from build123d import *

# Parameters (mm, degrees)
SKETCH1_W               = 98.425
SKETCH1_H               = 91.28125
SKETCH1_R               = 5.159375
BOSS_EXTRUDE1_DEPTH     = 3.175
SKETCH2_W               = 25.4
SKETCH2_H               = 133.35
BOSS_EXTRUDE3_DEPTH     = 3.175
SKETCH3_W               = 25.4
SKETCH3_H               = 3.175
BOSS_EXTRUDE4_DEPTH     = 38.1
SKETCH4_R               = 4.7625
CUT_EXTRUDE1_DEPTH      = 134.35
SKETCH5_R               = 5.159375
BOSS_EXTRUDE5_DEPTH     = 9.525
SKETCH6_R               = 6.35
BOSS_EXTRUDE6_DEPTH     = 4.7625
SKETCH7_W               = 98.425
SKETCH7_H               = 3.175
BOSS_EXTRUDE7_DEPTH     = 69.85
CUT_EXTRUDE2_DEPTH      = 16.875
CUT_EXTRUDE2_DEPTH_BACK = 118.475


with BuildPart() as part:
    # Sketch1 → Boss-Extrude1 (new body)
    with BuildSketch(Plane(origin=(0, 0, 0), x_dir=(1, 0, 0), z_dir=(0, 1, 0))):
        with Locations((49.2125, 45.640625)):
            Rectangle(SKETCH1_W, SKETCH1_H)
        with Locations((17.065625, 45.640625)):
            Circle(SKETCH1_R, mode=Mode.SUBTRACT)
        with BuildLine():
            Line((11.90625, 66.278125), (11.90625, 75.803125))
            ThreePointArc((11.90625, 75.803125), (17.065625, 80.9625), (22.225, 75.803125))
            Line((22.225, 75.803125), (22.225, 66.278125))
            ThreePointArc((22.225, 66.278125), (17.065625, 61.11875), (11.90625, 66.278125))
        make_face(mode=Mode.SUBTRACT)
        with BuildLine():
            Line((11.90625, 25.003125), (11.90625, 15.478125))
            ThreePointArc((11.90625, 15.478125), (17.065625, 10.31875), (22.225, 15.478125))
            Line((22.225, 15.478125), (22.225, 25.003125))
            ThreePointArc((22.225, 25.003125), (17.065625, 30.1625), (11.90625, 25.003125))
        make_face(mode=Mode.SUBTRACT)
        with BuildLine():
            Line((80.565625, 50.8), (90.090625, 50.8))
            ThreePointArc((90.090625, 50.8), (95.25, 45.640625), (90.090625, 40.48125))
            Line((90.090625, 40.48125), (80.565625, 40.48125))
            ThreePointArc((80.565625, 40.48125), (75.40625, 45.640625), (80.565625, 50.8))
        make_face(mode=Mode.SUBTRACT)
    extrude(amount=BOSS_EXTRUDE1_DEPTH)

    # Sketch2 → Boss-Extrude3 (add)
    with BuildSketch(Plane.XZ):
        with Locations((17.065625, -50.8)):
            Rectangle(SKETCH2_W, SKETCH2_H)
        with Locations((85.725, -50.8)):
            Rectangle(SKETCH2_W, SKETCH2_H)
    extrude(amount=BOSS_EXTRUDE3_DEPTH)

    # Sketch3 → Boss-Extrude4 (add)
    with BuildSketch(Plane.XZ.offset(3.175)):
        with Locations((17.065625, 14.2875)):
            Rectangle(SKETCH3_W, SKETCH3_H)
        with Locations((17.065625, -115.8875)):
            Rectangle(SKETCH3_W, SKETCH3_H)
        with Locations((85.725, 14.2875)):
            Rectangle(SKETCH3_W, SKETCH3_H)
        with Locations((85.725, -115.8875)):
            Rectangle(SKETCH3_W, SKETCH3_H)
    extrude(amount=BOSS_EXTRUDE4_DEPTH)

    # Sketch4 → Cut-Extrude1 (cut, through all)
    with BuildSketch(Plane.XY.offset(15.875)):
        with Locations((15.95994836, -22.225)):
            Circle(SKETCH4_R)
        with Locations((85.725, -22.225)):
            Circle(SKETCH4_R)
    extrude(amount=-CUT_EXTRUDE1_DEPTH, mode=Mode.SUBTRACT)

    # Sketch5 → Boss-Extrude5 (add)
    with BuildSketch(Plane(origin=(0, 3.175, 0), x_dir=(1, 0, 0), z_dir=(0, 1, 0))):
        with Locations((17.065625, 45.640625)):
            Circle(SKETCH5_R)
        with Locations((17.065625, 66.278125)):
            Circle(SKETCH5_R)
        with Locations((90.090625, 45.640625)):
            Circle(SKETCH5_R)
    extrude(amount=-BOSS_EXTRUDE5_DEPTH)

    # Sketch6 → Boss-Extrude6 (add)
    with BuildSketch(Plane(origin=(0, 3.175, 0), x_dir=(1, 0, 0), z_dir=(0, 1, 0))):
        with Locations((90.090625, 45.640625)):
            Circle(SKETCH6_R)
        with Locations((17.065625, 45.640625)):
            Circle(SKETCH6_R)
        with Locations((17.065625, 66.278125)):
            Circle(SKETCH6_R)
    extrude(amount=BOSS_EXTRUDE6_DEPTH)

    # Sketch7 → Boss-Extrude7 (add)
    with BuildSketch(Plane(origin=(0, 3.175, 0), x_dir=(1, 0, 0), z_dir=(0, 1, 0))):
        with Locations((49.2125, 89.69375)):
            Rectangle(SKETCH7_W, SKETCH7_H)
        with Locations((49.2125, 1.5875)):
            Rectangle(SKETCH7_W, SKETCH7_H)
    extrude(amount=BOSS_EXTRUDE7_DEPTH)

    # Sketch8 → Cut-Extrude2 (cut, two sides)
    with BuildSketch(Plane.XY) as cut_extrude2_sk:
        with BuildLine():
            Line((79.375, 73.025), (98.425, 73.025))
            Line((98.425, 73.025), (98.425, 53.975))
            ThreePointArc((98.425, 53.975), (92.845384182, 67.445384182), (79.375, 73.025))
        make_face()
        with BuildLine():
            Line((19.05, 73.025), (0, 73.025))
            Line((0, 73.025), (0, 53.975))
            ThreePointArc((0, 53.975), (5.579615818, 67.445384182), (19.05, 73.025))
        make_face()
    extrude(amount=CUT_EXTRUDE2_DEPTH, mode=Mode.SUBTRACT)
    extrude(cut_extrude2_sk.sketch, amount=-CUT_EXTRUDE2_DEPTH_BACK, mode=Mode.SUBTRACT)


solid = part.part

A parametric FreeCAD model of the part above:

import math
import FreeCAD as App
import Part
import Sketcher
from FreeCAD import Vector
Q = App.Units.Quantity

doc = App.newDocument("Part")
body = doc.addObject("PartDesign::Body", "Body")

sketch1 = doc.addObject("Sketcher::SketchObject", "Sketch")
body.addObject(sketch1)
sketch1.AttachmentSupport = (doc.XZ_Plane, [""])
sketch1.MapMode = "FlatFace"
sketch1.addGeometry(Part.LineSegment(Vector(0, -91, 0), Vector(0, 0, 0)), False)
sketch1.addGeometry(Part.LineSegment(Vector(0, 0, 0), Vector(98, 0, 0)), False)
sketch1.addGeometry(Part.LineSegment(Vector(98, 0, 0), Vector(98, -91, 0)), False)
sketch1.addGeometry(Part.LineSegment(Vector(98, -91, 0), Vector(0, -91, 0)), False)
sketch1.addGeometry(Part.LineSegment(Vector(12, -15, 0), Vector(12, -25, 0)), False)
sketch1.addGeometry(Part.ArcOfCircle(Part.Circle(Vector(17, -25, 0), Vector(0, 0, 1), 5), math.radians(180), math.radians(360)), False)
sketch1.addGeometry(Part.LineSegment(Vector(22, -25, 0), Vector(22, -15, 0)), False)
sketch1.addGeometry(Part.ArcOfCircle(Part.Circle(Vector(17, -15, 0), Vector(0, 0, 1), 5), math.radians(0), math.radians(180)), False)
sketch1.addGeometry(Part.Circle(Vector(17, -46, 0), Vector(0, 0, 1), 5), False)
sketch1.addGeometry(Part.ArcOfCircle(Part.Circle(Vector(17, -66, 0), Vector(0, 0, 1), 5), math.radians(0), math.radians(180)), False)
sketch1.addGeometry(Part.LineSegment(Vector(12, -66, 0), Vector(12, -76, 0)), False)
sketch1.addGeometry(Part.ArcOfCircle(Part.Circle(Vector(17, -76, 0), Vector(0, 0, 1), 5), math.radians(180), math.radians(360)), False)
sketch1.addGeometry(Part.LineSegment(Vector(22, -76, 0), Vector(22, -66, 0)), False)
sketch1.addGeometry(Part.ArcOfCircle(Part.Circle(Vector(81, -46, 0), Vector(0, 0, 1), 5), math.radians(90), math.radians(270)), False)
sketch1.addGeometry(Part.LineSegment(Vector(81, -51, 0), Vector(90, -51, 0)), False)
sketch1.addGeometry(Part.ArcOfCircle(Part.Circle(Vector(90, -46, 0), Vector(0, 0, 1), 5), math.radians(-90), math.radians(90)), False)
sketch1.addGeometry(Part.LineSegment(Vector(90, -40, 0), Vector(81, -40, 0)), False)
sketch1.addConstraint(Sketcher.Constraint("Coincident", 0, 2, 1, 1))
sketch1.addConstraint(Sketcher.Constraint("Coincident", 1, 2, 2, 1))
sketch1.addConstraint(Sketcher.Constraint("Coincident", 2, 2, 3, 1))
sketch1.addConstraint(Sketcher.Constraint("Coincident", 3, 2, 0, 1))
sketch1.addConstraint(Sketcher.Constraint("Tangent", 4, 2, 5, 1))
sketch1.addConstraint(Sketcher.Constraint("Tangent", 5, 2, 6, 1))
sketch1.addConstraint(Sketcher.Constraint("Tangent", 6, 2, 7, 1))
sketch1.addConstraint(Sketcher.Constraint("Tangent", 7, 2, 4, 1))
sketch1.addConstraint(Sketcher.Constraint("Tangent", 9, 2, 10, 1))
sketch1.addConstraint(Sketcher.Constraint("Tangent", 10, 2, 11, 1))
sketch1.addConstraint(Sketcher.Constraint("Tangent", 11, 2, 12, 1))
sketch1.addConstraint(Sketcher.Constraint("Tangent", 12, 2, 9, 1))
sketch1.addConstraint(Sketcher.Constraint("Tangent", 13, 2, 14, 1))
sketch1.addConstraint(Sketcher.Constraint("Tangent", 14, 2, 15, 1))
sketch1.addConstraint(Sketcher.Constraint("Tangent", 15, 2, 16, 1))
sketch1.addConstraint(Sketcher.Constraint("Tangent", 16, 2, 13, 1))
sketch1.addConstraint(Sketcher.Constraint("Vertical", 0))
sketch1.addConstraint(Sketcher.Constraint("Horizontal", 1))
sketch1.addConstraint(Sketcher.Constraint("Vertical", 2))
sketch1.addConstraint(Sketcher.Constraint("Horizontal", 3))
sketch1.addConstraint(Sketcher.Constraint("Vertical", 4))
sketch1.addConstraint(Sketcher.Constraint("Vertical", 6))
sketch1.addConstraint(Sketcher.Constraint("Vertical", 10))
sketch1.addConstraint(Sketcher.Constraint("Vertical", 12))
sketch1.addConstraint(Sketcher.Constraint("Horizontal", 14))
sketch1.addConstraint(Sketcher.Constraint("Horizontal", 16))
sketch1.addConstraint(Sketcher.Constraint("Coincident", 0, 2, -1, 1))
sketch1.addConstraint(Sketcher.Constraint("Equal", 7, 8))
sketch1.addConstraint(Sketcher.Constraint("Equal", 8, 9))
sketch1.addConstraint(Sketcher.Constraint("Equal", 11, 13))
sketch1.addConstraint(Sketcher.Constraint("Horizontal", 8, 3, 13, 3))
sketch1.addConstraint(Sketcher.Constraint("Vertical", 7, 3, 8, 3))
sketch1.addConstraint(Sketcher.Constraint("Vertical", 8, 3, 9, 3))
sketch1.addConstraint(Sketcher.Constraint("Equal", 16, 4))
sketch1.addConstraint(Sketcher.Constraint("Equal", 6, 10))
sketch1.addConstraint(Sketcher.Constraint("Diameter", 8, Q("0.40625 in")))
sketch1.addConstraint(Sketcher.Constraint("DistanceY", 13, 2, -1, 1, Q("2 in")))
sketch1.addConstraint(Sketcher.Constraint("DistanceY", 9, 3, 7, 3, Q("2 in")))
sketch1.addConstraint(Sketcher.Constraint("DistanceX", 8, 3, 13, 3, Q("2.5 in")))
sketch1.addConstraint(Sketcher.Constraint("DistanceX", 1, 1, 1, 2, Q("3.875 in")))
sketch1.addConstraint(Sketcher.Constraint("DistanceX", 14, 1, 14, 2, Q("0.375 in")))
sketch1.addConstraint(Sketcher.Constraint("DistanceY", 0, 1, 0, 2, Q("3.59375 in")))
sketch1.addConstraint(Sketcher.Constraint("DistanceX", -1, 1, 5, 3, Q("0.671875 in")))
sketch1.addConstraint(Sketcher.Constraint("DistanceY", 5, 3, -1, 1, Q("0.984375 in")))
pad1 = doc.addObject("PartDesign::Pad", "Pad")
body.addObject(pad1)
pad1.Profile = sketch1
pad1.Length = Q("0.125 in")
pad1.Reversed = True

sketch2 = doc.addObject("Sketcher::SketchObject", "Sketch001")
body.addObject(sketch2)
sketch2.AttachmentSupport = (doc.XZ_Plane, [""])
sketch2.MapMode = "FlatFace"
sketch2.addGeometry(Part.LineSegment(Vector(4, 16, 0), Vector(4, -117, 0)), False)
sketch2.addGeometry(Part.LineSegment(Vector(4, -117, 0), Vector(30, -117, 0)), False)
sketch2.addGeometry(Part.LineSegment(Vector(30, -117, 0), Vector(30, 16, 0)), False)
sketch2.addGeometry(Part.LineSegment(Vector(30, 16, 0), Vector(4, 16, 0)), False)
sketch2.addGeometry(Part.LineSegment(Vector(73, 16, 0), Vector(73, -117, 0)), False)
sketch2.addGeometry(Part.LineSegment(Vector(73, -117, 0), Vector(98, -117, 0)), False)
sketch2.addGeometry(Part.LineSegment(Vector(98, -117, 0), Vector(98, 16, 0)), False)
sketch2.addGeometry(Part.LineSegment(Vector(98, 16, 0), Vector(73, 16, 0)), False)
sketch2.addConstraint(Sketcher.Constraint("Coincident", 0, 2, 1, 1))
sketch2.addConstraint(Sketcher.Constraint("Coincident", 1, 2, 2, 1))
sketch2.addConstraint(Sketcher.Constraint("Coincident", 2, 2, 3, 1))
sketch2.addConstraint(Sketcher.Constraint("Coincident", 3, 2, 0, 1))
sketch2.addConstraint(Sketcher.Constraint("Coincident", 4, 2, 5, 1))
sketch2.addConstraint(Sketcher.Constraint("Coincident", 5, 2, 6, 1))
sketch2.addConstraint(Sketcher.Constraint("Coincident", 6, 2, 7, 1))
sketch2.addConstraint(Sketcher.Constraint("Coincident", 7, 2, 4, 1))
sketch2.addConstraint(Sketcher.Constraint("Vertical", 0))
sketch2.addConstraint(Sketcher.Constraint("Horizontal", 1))
sketch2.addConstraint(Sketcher.Constraint("Vertical", 2))
sketch2.addConstraint(Sketcher.Constraint("Horizontal", 3))
sketch2.addConstraint(Sketcher.Constraint("Vertical", 4))
sketch2.addConstraint(Sketcher.Constraint("Horizontal", 5))
sketch2.addConstraint(Sketcher.Constraint("Vertical", 6))
sketch2.addConstraint(Sketcher.Constraint("Horizontal", 7))
sketch2.addConstraint(Sketcher.Constraint("Horizontal", 1, 2, 4, 2))
sketch2.addConstraint(Sketcher.Constraint("Horizontal", 3, 2, 6, 2))
sketch2.addConstraint(Sketcher.Constraint("Equal", 3, 5))
sketch2.addConstraint(Sketcher.Constraint("DistanceX", 1, 1, 1, 2, Q("1 in")))
sketch2.addConstraint(Sketcher.Constraint("DistanceY", 0, 2, 0, 1, Q("5.25 in")))
sketch2.addConstraint(Sketcher.Constraint("DistanceX", -1, 1, 0, 2, Q("0.171875 in")))
sketch2.addConstraint(Sketcher.Constraint("DistanceY", 0, 2, -1, 1, Q("4.625 in")))
sketch2.addConstraint(Sketcher.Constraint("DistanceX", -1, 1, 4, 2, Q("2.875 in")))
pad2 = doc.addObject("PartDesign::Pad", "Pad001")
body.addObject(pad2)
pad2.Profile = sketch2
pad2.Length = Q("0.125 in")

sketch3 = doc.addObject("Sketcher::SketchObject", "Sketch002")
body.addObject(sketch3)
sketch3.AttachmentSupport = (doc.XZ_Plane, [""])
sketch3.MapMode = "FlatFace"
sketch3.AttachmentOffset = App.Placement(Vector(0, 0, 0.125 * 25.4), App.Rotation())
sketch3.addGeometry(Part.LineSegment(Vector(4.4, 15.9, 0), Vector(4.4, 12.7, 0)), False)
sketch3.addGeometry(Part.LineSegment(Vector(4.4, 12.7, 0), Vector(29.8, 12.7, 0)), False)
sketch3.addGeometry(Part.LineSegment(Vector(29.8, 12.7, 0), Vector(29.8, 15.9, 0)), False)
sketch3.addGeometry(Part.LineSegment(Vector(29.8, 15.9, 0), Vector(4.4, 15.9, 0)), False)
sketch3.addGeometry(Part.LineSegment(Vector(4.4, -114.3, 0), Vector(4.4, -117.5, 0)), False)
sketch3.addGeometry(Part.LineSegment(Vector(4.4, -117.5, 0), Vector(29.8, -117.5, 0)), False)
sketch3.addGeometry(Part.LineSegment(Vector(29.8, -117.5, 0), Vector(29.8, -114.3, 0)), False)
sketch3.addGeometry(Part.LineSegment(Vector(29.8, -114.3, 0), Vector(4.4, -114.3, 0)), False)
sketch3.addGeometry(Part.LineSegment(Vector(73, 15.9, 0), Vector(73, 12.7, 0)), False)
sketch3.addGeometry(Part.LineSegment(Vector(73, 12.7, 0), Vector(98.4, 12.7, 0)), False)
sketch3.addGeometry(Part.LineSegment(Vector(98.4, 12.7, 0), Vector(98.4, 15.9, 0)), False)
sketch3.addGeometry(Part.LineSegment(Vector(98.4, 15.9, 0), Vector(73, 15.9, 0)), False)
sketch3.addGeometry(Part.LineSegment(Vector(73, -114.3, 0), Vector(73, -117.5, 0)), False)
sketch3.addGeometry(Part.LineSegment(Vector(73, -117.5, 0), Vector(98.4, -117.5, 0)), False)
sketch3.addGeometry(Part.LineSegment(Vector(98.4, -117.5, 0), Vector(98.4, -114.3, 0)), False)
sketch3.addGeometry(Part.LineSegment(Vector(98.4, -114.3, 0), Vector(73, -114.3, 0)), False)
sketch3.addConstraint(Sketcher.Constraint("Coincident", 0, 2, 1, 1))
sketch3.addConstraint(Sketcher.Constraint("Coincident", 1, 2, 2, 1))
sketch3.addConstraint(Sketcher.Constraint("Coincident", 2, 2, 3, 1))
sketch3.addConstraint(Sketcher.Constraint("Coincident", 3, 2, 0, 1))
sketch3.addConstraint(Sketcher.Constraint("Coincident", 4, 2, 5, 1))
sketch3.addConstraint(Sketcher.Constraint("Coincident", 5, 2, 6, 1))
sketch3.addConstraint(Sketcher.Constraint("Coincident", 6, 2, 7, 1))
sketch3.addConstraint(Sketcher.Constraint("Coincident", 7, 2, 4, 1))
sketch3.addConstraint(Sketcher.Constraint("Coincident", 8, 2, 9, 1))
sketch3.addConstraint(Sketcher.Constraint("Coincident", 9, 2, 10, 1))
sketch3.addConstraint(Sketcher.Constraint("Coincident", 10, 2, 11, 1))
sketch3.addConstraint(Sketcher.Constraint("Coincident", 11, 2, 8, 1))
sketch3.addConstraint(Sketcher.Constraint("Coincident", 12, 2, 13, 1))
sketch3.addConstraint(Sketcher.Constraint("Coincident", 13, 2, 14, 1))
sketch3.addConstraint(Sketcher.Constraint("Coincident", 14, 2, 15, 1))
sketch3.addConstraint(Sketcher.Constraint("Coincident", 15, 2, 12, 1))
sketch3.addConstraint(Sketcher.Constraint("Vertical", 0))
sketch3.addConstraint(Sketcher.Constraint("Horizontal", 1))
sketch3.addConstraint(Sketcher.Constraint("Vertical", 2))
sketch3.addConstraint(Sketcher.Constraint("Horizontal", 3))
sketch3.addConstraint(Sketcher.Constraint("Vertical", 4))
sketch3.addConstraint(Sketcher.Constraint("Horizontal", 5))
sketch3.addConstraint(Sketcher.Constraint("Vertical", 6))
sketch3.addConstraint(Sketcher.Constraint("Horizontal", 7))
sketch3.addConstraint(Sketcher.Constraint("Vertical", 8))
sketch3.addConstraint(Sketcher.Constraint("Horizontal", 9))
sketch3.addConstraint(Sketcher.Constraint("Vertical", 10))
sketch3.addConstraint(Sketcher.Constraint("Horizontal", 11))
sketch3.addConstraint(Sketcher.Constraint("Vertical", 12))
sketch3.addConstraint(Sketcher.Constraint("Horizontal", 13))
sketch3.addConstraint(Sketcher.Constraint("Vertical", 14))
sketch3.addConstraint(Sketcher.Constraint("Horizontal", 15))
sketch3.addConstraint(Sketcher.Constraint("Horizontal", 1, 2, 8, 2))
sketch3.addConstraint(Sketcher.Constraint("Horizontal", 3, 2, 10, 2))
sketch3.addConstraint(Sketcher.Constraint("Horizontal", 5, 2, 12, 2))
sketch3.addConstraint(Sketcher.Constraint("Horizontal", 7, 2, 14, 2))
sketch3.addConstraint(Sketcher.Constraint("Vertical", 3, 2, 4, 2))
sketch3.addConstraint(Sketcher.Constraint("Vertical", 2, 2, 5, 2))
sketch3.addConstraint(Sketcher.Constraint("Vertical", 11, 2, 12, 2))
sketch3.addConstraint(Sketcher.Constraint("Vertical", 10, 2, 13, 2))
sketch3.addConstraint(Sketcher.Constraint("Equal", 7, 9))
sketch3.addConstraint(Sketcher.Constraint("Equal", 2, 4))
sketch3.addConstraint(Sketcher.Constraint("DistanceX", 1, 1, 1, 2, Q("1 in")))
sketch3.addConstraint(Sketcher.Constraint("DistanceY", 6, 2, 1, 2, Q("5 in")))
sketch3.addConstraint(Sketcher.Constraint("DistanceY", -1, 1, 0, 2, Q("0.5 in")))
sketch3.addConstraint(Sketcher.Constraint("DistanceY", 0, 2, 0, 1, Q("0.125 in")))
sketch3.addConstraint(Sketcher.Constraint("DistanceX", -1, 1, 0, 2, Q("0.171875 in")))
sketch3.addConstraint(Sketcher.Constraint("DistanceX", -1, 1, 8, 2, Q("2.875 in")))
pad3 = doc.addObject("PartDesign::Pad", "Pad002")
body.addObject(pad3)
pad3.Profile = sketch3
pad3.Length = Q("1.5 in")

sketch4 = doc.addObject("Sketcher::SketchObject", "Sketch003")
body.addObject(sketch4)
sketch4.AttachmentSupport = (doc.XY_Plane, [""])
sketch4.MapMode = "FlatFace"
sketch4.AttachmentOffset = App.Placement(Vector(0, 0, 0.625 * 25.4), App.Rotation())
sketch4.addGeometry(Part.Circle(Vector(16, -22.2, 0), Vector(0, 0, 1), 4.8), False)
sketch4.addGeometry(Part.Circle(Vector(85.7, -22.2, 0), Vector(0, 0, 1), 4.8), False)
sketch4.addConstraint(Sketcher.Constraint("Equal", 0, 1))
sketch4.addConstraint(Sketcher.Constraint("Horizontal", 0, 3, 1, 3))
sketch4.addConstraint(Sketcher.Constraint("Diameter", 0, Q("0.375 in")))
sketch4.addConstraint(Sketcher.Constraint("DistanceY", 0, 3, -1, 1, Q("0.875 in")))
sketch4.addConstraint(Sketcher.Constraint("DistanceX", -1, 1, 1, 3, Q("3.375 in")))
sketch4.addConstraint(Sketcher.Constraint("DistanceX", -1, 1, 0, 3, Q("15.959948 mm")))
pocket1 = doc.addObject("PartDesign::Pocket", "Pocket")
body.addObject(pocket1)
pocket1.Profile = sketch4
pocket1.Type = "ThroughAll"

sketch5 = doc.addObject("Sketcher::SketchObject", "Sketch004")
body.addObject(sketch5)
sketch5.AttachmentSupport = (doc.XZ_Plane, [""])
sketch5.MapMode = "FlatFace"
sketch5.AttachmentOffset = App.Placement(Vector(0, 0, -0.125 * 25.4), App.Rotation())
sketch5.addGeometry(Part.Circle(Vector(17, -46, 0), Vector(0, 0, 1), 5), False)
sketch5.addGeometry(Part.Circle(Vector(17, -66, 0), Vector(0, 0, 1), 5), False)
sketch5.addGeometry(Part.Circle(Vector(90, -46, 0), Vector(0, 0, 1), 5), False)
sketch5.addConstraint(Sketcher.Constraint("Equal", 0, 1))
sketch5.addConstraint(Sketcher.Constraint("Equal", 1, 2))
sketch5.addConstraint(Sketcher.Constraint("Horizontal", 0, 3, 2, 3))
sketch5.addConstraint(Sketcher.Constraint("Vertical", 0, 3, 1, 3))
sketch5.addConstraint(Sketcher.Constraint("Diameter", 0, Q("0.40625 in")))
sketch5.addConstraint(Sketcher.Constraint("DistanceX", -1, 1, 0, 3, Q("0.671875 in")))
sketch5.addConstraint(Sketcher.Constraint("DistanceY", 0, 3, -1, 1, Q("1.796875 in")))
sketch5.addConstraint(Sketcher.Constraint("DistanceY", 1, 3, -1, 1, Q("2.609375 in")))
sketch5.addConstraint(Sketcher.Constraint("DistanceX", -1, 1, 2, 3, Q("3.546875 in")))
pad4 = doc.addObject("PartDesign::Pad", "Pad003")
body.addObject(pad4)
pad4.Profile = sketch5
pad4.Length = Q("0.375 in")

sketch6 = doc.addObject("Sketcher::SketchObject", "Sketch005")
body.addObject(sketch6)
sketch6.AttachmentSupport = (doc.XZ_Plane, [""])
sketch6.MapMode = "FlatFace"
sketch6.AttachmentOffset = App.Placement(Vector(0, 0, -0.125 * 25.4), App.Rotation())
sketch6.addGeometry(Part.Circle(Vector(90, -46, 0), Vector(0, 0, 1), 6), False)
sketch6.addGeometry(Part.Circle(Vector(17, -46, 0), Vector(0, 0, 1), 6), False)
sketch6.addGeometry(Part.Circle(Vector(17, -66, 0), Vector(0, 0, 1), 6), False)
sketch6.addConstraint(Sketcher.Constraint("Equal", 0, 1))
sketch6.addConstraint(Sketcher.Constraint("Equal", 1, 2))
sketch6.addConstraint(Sketcher.Constraint("Horizontal", 0, 3, 1, 3))
sketch6.addConstraint(Sketcher.Constraint("Vertical", 1, 3, 2, 3))
sketch6.addConstraint(Sketcher.Constraint("Diameter", 0, Q("0.5 in")))
sketch6.addConstraint(Sketcher.Constraint("DistanceX", -1, 1, 0, 3, Q("3.546875 in")))
sketch6.addConstraint(Sketcher.Constraint("DistanceY", 0, 3, -1, 1, Q("1.796875 in")))
sketch6.addConstraint(Sketcher.Constraint("DistanceX", -1, 1, 1, 3, Q("0.671875 in")))
sketch6.addConstraint(Sketcher.Constraint("DistanceY", 2, 3, -1, 1, Q("2.609375 in")))
pad5 = doc.addObject("PartDesign::Pad", "Pad004")
body.addObject(pad5)
pad5.Profile = sketch6
pad5.Length = Q("0.1875 in")
pad5.Reversed = True

sketch7 = doc.addObject("Sketcher::SketchObject", "Sketch006")
body.addObject(sketch7)
sketch7.AttachmentSupport = (doc.XZ_Plane, [""])
sketch7.MapMode = "FlatFace"
sketch7.AttachmentOffset = App.Placement(Vector(0, 0, -0.125 * 25.4), App.Rotation())
sketch7.addGeometry(Part.LineSegment(Vector(0, -91.3, 0), Vector(0, -88.1, 0)), False)
sketch7.addGeometry(Part.LineSegment(Vector(0, -88.1, 0), Vector(98.4, -88.1, 0)), False)
sketch7.addGeometry(Part.LineSegment(Vector(98.4, -88.1, 0), Vector(98.4, -91.3, 0)), False)
sketch7.addGeometry(Part.LineSegment(Vector(98.4, -91.3, 0), Vector(0, -91.3, 0)), False)
sketch7.addGeometry(Part.LineSegment(Vector(0, -3.2, 0), Vector(0, 0, 0)), False)
sketch7.addGeometry(Part.LineSegment(Vector(0, 0, 0), Vector(98.4, 0, 0)), False)
sketch7.addGeometry(Part.LineSegment(Vector(98.4, 0, 0), Vector(98.4, -3.2, 0)), False)
sketch7.addGeometry(Part.LineSegment(Vector(98.4, -3.2, 0), Vector(0, -3.2, 0)), False)
sketch7.addConstraint(Sketcher.Constraint("Coincident", 0, 2, 1, 1))
sketch7.addConstraint(Sketcher.Constraint("Coincident", 1, 2, 2, 1))
sketch7.addConstraint(Sketcher.Constraint("Coincident", 2, 2, 3, 1))
sketch7.addConstraint(Sketcher.Constraint("Coincident", 3, 2, 0, 1))
sketch7.addConstraint(Sketcher.Constraint("Coincident", 4, 2, 5, 1))
sketch7.addConstraint(Sketcher.Constraint("Coincident", 5, 2, 6, 1))
sketch7.addConstraint(Sketcher.Constraint("Coincident", 6, 2, 7, 1))
sketch7.addConstraint(Sketcher.Constraint("Coincident", 7, 2, 4, 1))
sketch7.addConstraint(Sketcher.Constraint("Vertical", 0))
sketch7.addConstraint(Sketcher.Constraint("Horizontal", 1))
sketch7.addConstraint(Sketcher.Constraint("Vertical", 2))
sketch7.addConstraint(Sketcher.Constraint("Horizontal", 3))
sketch7.addConstraint(Sketcher.Constraint("Vertical", 4))
sketch7.addConstraint(Sketcher.Constraint("Horizontal", 5))
sketch7.addConstraint(Sketcher.Constraint("Vertical", 6))
sketch7.addConstraint(Sketcher.Constraint("Horizontal", 7))
sketch7.addConstraint(Sketcher.Constraint("Coincident", 4, 2, -1, 1))
sketch7.addConstraint(Sketcher.Constraint("PointOnObject", 0, 2, -2))
sketch7.addConstraint(Sketcher.Constraint("Vertical", 2, 2, 5, 2))
sketch7.addConstraint(Sketcher.Constraint("Equal", 2, 4))
sketch7.addConstraint(Sketcher.Constraint("DistanceX", 1, 1, 1, 2, Q("3.875 in")))
sketch7.addConstraint(Sketcher.Constraint("DistanceY", 0, 1, 0, 2, Q("0.125 in")))
sketch7.addConstraint(Sketcher.Constraint("DistanceY", 0, 2, -1, 1, Q("3.46875 in")))
pad6 = doc.addObject("PartDesign::Pad", "Pad005")
body.addObject(pad6)
pad6.Profile = sketch7
pad6.Length = Q("2.75 in")
pad6.Reversed = True

sketch8 = doc.addObject("Sketcher::SketchObject", "Sketch007")
body.addObject(sketch8)
sketch8.AttachmentSupport = (doc.XY_Plane, [""])
sketch8.MapMode = "FlatFace"
sketch8.addGeometry(Part.LineSegment(Vector(98, 73, 0), Vector(79, 73, 0)), False)
sketch8.addGeometry(Part.ArcOfCircle(Part.Circle(Vector(79, 54, 0), Vector(0, 0, 1), 19), math.radians(0), math.radians(90)), False)
sketch8.addGeometry(Part.LineSegment(Vector(98, 54, 0), Vector(98, 73, 0)), False)
sketch8.addGeometry(Part.LineSegment(Vector(19, 73, 0), Vector(0, 73, 0)), False)
sketch8.addGeometry(Part.LineSegment(Vector(0, 73, 0), Vector(0, 54, 0)), False)
sketch8.addGeometry(Part.ArcOfCircle(Part.Circle(Vector(19, 54, 0), Vector(0, 0, 1), 19), math.radians(90), math.radians(180)), False)
sketch8.addConstraint(Sketcher.Constraint("Tangent", 0, 2, 1, 2))
sketch8.addConstraint(Sketcher.Constraint("Tangent", 1, 1, 2, 1))
sketch8.addConstraint(Sketcher.Constraint("Coincident", 2, 2, 0, 1))
sketch8.addConstraint(Sketcher.Constraint("Coincident", 3, 2, 4, 1))
sketch8.addConstraint(Sketcher.Constraint("Tangent", 4, 2, 5, 2))
sketch8.addConstraint(Sketcher.Constraint("Tangent", 5, 1, 3, 1))
sketch8.addConstraint(Sketcher.Constraint("Horizontal", 0))
sketch8.addConstraint(Sketcher.Constraint("Vertical", 2))
sketch8.addConstraint(Sketcher.Constraint("Horizontal", 3))
sketch8.addConstraint(Sketcher.Constraint("Vertical", 4))
sketch8.addConstraint(Sketcher.Constraint("Equal", 1, 5))
sketch8.addConstraint(Sketcher.Constraint("PointOnObject", 3, 2, -2))
sketch8.addConstraint(Sketcher.Constraint("Horizontal", 1, 3, 5, 3))
sketch8.addConstraint(Sketcher.Constraint("Radius", 1, Q("0.75 in")))
sketch8.addConstraint(Sketcher.Constraint("DistanceX", -1, 1, 1, 3, Q("3.125 in")))
sketch8.addConstraint(Sketcher.Constraint("DistanceY", -1, 1, 1, 3, Q("2.125 in")))
pocket2 = doc.addObject("PartDesign::Pocket", "Pocket001")
body.addObject(pocket2)
pocket2.Profile = sketch8
pocket2.Type = "ThroughAll"
pocket2.Midplane = True

doc.recompute()
